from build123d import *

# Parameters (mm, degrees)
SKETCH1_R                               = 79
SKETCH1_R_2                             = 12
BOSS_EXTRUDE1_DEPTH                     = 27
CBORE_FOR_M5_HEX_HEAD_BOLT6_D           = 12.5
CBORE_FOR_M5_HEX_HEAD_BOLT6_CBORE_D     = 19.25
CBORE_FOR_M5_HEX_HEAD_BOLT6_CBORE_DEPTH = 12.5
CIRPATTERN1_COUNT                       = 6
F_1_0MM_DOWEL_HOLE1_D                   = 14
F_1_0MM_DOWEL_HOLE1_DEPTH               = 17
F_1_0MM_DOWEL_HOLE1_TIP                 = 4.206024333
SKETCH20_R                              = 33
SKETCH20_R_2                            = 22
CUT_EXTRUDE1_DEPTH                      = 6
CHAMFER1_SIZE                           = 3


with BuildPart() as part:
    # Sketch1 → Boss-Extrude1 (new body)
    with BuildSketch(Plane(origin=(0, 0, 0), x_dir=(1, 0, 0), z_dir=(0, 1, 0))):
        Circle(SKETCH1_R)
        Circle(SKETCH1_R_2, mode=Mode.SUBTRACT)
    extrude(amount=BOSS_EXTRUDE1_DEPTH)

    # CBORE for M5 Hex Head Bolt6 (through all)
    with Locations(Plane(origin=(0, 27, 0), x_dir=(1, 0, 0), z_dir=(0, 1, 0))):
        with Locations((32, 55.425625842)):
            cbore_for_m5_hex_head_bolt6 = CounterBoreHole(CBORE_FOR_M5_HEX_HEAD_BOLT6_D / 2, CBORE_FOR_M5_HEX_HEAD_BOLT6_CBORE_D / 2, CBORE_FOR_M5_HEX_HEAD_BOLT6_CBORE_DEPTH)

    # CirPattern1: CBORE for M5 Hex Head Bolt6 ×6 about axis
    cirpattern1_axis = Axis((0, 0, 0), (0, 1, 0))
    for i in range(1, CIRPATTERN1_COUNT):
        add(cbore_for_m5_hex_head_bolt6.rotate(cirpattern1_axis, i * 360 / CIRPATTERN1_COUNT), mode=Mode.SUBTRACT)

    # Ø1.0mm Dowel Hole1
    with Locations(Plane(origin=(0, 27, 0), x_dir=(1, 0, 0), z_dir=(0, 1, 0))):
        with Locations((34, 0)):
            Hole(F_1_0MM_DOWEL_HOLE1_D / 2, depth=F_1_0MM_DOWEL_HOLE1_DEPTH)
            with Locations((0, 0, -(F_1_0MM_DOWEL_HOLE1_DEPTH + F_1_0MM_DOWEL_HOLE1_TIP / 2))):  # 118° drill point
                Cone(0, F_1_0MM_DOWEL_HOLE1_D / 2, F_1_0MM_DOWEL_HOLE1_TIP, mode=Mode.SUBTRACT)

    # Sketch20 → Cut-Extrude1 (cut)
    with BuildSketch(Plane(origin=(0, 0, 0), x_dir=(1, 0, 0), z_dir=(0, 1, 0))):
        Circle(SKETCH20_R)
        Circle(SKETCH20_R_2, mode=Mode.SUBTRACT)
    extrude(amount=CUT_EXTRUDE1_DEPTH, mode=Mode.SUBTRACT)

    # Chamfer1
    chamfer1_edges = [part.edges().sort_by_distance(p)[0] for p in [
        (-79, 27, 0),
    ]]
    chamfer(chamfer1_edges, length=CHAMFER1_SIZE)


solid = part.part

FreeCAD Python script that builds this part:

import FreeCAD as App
import Part
import Sketcher

V = App.Vector
Q = App.Units.Quantity


def edges_at(feature, points):
    """Names of the edges that pass closest to the given points."""
    edges = feature.Shape.Edges
    near = lambda p: min(range(len(edges)), key=lambda i: edges[i].distToShape(Part.Vertex(*p))[0])
    return sorted({f"Edge{near(p) + 1}" for p in points})

doc = App.newDocument("Part")
body = doc.addObject("PartDesign::Body", "Body")

# Sketch on XZ plane
sketch1 = doc.addObject("Sketcher::SketchObject", "Sketch")
body.addObject(sketch1)
sketch1.AttachmentSupport = (doc.XZ_Plane, [""])
sketch1.MapMode = "FlatFace"
sketch1.addGeometry([
    Part.Circle(V(0, 0, 0), V(0, 0, 1), 79),
    Part.Circle(V(0, 0, 0), V(0, 0, 1), 12),
], False)
sketch1.addConstraint([
    Sketcher.Constraint("Coincident", 0, 3, -1, 1),
    Sketcher.Constraint("Coincident", 1, 3, -1, 1),
    Sketcher.Constraint("Diameter", 0, Q("158 mm")),
    Sketcher.Constraint("Diameter", 1, Q("24 mm")),
])
pad1 = doc.addObject("PartDesign::Pad", "Pad")
body.addObject(pad1)
pad1.Profile = sketch1
pad1.Length = 27
pad1.Reversed = True

# Sketch on XZ plane
sketch2 = doc.addObject("Sketcher::SketchObject", "Sketch001")
body.addObject(sketch2)
sketch2.AttachmentSupport = (doc.XZ_Plane, [""])
sketch2.MapMode = "FlatFace"
sketch2.AttachmentOffset = App.Placement(V(0, 0, -27), App.Rotation())
sketch2.addGeometry(Part.Circle(V(32, -55, 0), V(0, 0, 1), 6), False)
sketch2.addConstraint([
    Sketcher.Constraint("Diameter", 0, Q("12.5 mm")),
    Sketcher.Constraint("DistanceX", -1, 1, 0, 3, Q("32 mm")),
    Sketcher.Constraint("DistanceY", 0, 3, -1, 1, Q("55.425626 mm")),
])
doc.recompute()
hole = doc.addObject("PartDesign::Hole", "Hole")
body.addObject(hole)
hole.Profile = sketch2
hole.ThreadType = "None"
hole.Diameter = 12.5
hole.DepthType = "ThroughAll"
hole.HoleCutType = "Counterbore"
hole.HoleCutDiameter = 19.25
hole.HoleCutDepth = 12.5
hole.Reversed = True
doc.recompute()

polarpattern = doc.addObject("PartDesign::PolarPattern", "PolarPattern")
body.addObject(polarpattern)
polarpattern.Originals = [hole]
polarpattern.Axis = (doc.Y_Axis, [""])
polarpattern.Angle = 360
polarpattern.Occurrences = 6
body.Tip = polarpattern

# Sketch on XZ plane
sketch3 = doc.addObject("Sketcher::SketchObject", "Sketch002")
body.addObject(sketch3)
sketch3.AttachmentSupport = (doc.XZ_Plane, [""])
sketch3.MapMode = "FlatFace"
sketch3.AttachmentOffset = App.Placement(V(0, 0, -27), App.Rotation())
sketch3.addGeometry(Part.Circle(V(34, 0, 0), V(0, 0, 1), 7), False)
sketch3.addConstraint([
    Sketcher.Constraint("PointOnObject", 0, 3, -1),
    Sketcher.Constraint("Diameter", 0, Q("14 mm")),
    Sketcher.Constraint("DistanceX", -1, 1, 0, 3, Q("34 mm")),
])
doc.recompute()
hole2 = doc.addObject("PartDesign::Hole", "Hole001")
body.addObject(hole2)
hole2.Profile = sketch3
hole2.ThreadType = "None"
hole2.Diameter = 14
hole2.DepthType = "Dimension"
hole2.Depth = 17
hole2.DrillPoint = "Angled"
hole2.DrillPointAngle = 118
hole2.Reversed = True

# Sketch on XZ plane
sketch4 = doc.addObject("Sketcher::SketchObject", "Sketch003")
body.addObject(sketch4)
sketch4.AttachmentSupport = (doc.XZ_Plane, [""])
sketch4.MapMode = "FlatFace"
sketch4.addGeometry([
    Part.Circle(V(0, 0, 0), V(0, 0, 1), 33),
    Part.Circle(V(0, 0, 0), V(0, 0, 1), 22),
], False)
sketch4.addConstraint([
    Sketcher.Constraint("Coincident", 0, 3, -1, 1),
    Sketcher.Constraint("Coincident", 1, 3, -1, 1),
    Sketcher.Constraint("Diameter", 0, Q("66 mm")),
    Sketcher.Constraint("Diameter", 1, Q("44 mm")),
])
pocket1 = doc.addObject("PartDesign::Pocket", "Pocket")
body.addObject(pocket1)
pocket1.Profile = sketch4
pocket1.Length = 6
doc.recompute()

chamfer = doc.addObject("PartDesign::Chamfer", "Chamfer")
body.addObject(chamfer)
chamfer.Base = (pocket1, edges_at(pocket1, [(-79, 27, 0)]))
chamfer.Size = 3

doc.recompute()
